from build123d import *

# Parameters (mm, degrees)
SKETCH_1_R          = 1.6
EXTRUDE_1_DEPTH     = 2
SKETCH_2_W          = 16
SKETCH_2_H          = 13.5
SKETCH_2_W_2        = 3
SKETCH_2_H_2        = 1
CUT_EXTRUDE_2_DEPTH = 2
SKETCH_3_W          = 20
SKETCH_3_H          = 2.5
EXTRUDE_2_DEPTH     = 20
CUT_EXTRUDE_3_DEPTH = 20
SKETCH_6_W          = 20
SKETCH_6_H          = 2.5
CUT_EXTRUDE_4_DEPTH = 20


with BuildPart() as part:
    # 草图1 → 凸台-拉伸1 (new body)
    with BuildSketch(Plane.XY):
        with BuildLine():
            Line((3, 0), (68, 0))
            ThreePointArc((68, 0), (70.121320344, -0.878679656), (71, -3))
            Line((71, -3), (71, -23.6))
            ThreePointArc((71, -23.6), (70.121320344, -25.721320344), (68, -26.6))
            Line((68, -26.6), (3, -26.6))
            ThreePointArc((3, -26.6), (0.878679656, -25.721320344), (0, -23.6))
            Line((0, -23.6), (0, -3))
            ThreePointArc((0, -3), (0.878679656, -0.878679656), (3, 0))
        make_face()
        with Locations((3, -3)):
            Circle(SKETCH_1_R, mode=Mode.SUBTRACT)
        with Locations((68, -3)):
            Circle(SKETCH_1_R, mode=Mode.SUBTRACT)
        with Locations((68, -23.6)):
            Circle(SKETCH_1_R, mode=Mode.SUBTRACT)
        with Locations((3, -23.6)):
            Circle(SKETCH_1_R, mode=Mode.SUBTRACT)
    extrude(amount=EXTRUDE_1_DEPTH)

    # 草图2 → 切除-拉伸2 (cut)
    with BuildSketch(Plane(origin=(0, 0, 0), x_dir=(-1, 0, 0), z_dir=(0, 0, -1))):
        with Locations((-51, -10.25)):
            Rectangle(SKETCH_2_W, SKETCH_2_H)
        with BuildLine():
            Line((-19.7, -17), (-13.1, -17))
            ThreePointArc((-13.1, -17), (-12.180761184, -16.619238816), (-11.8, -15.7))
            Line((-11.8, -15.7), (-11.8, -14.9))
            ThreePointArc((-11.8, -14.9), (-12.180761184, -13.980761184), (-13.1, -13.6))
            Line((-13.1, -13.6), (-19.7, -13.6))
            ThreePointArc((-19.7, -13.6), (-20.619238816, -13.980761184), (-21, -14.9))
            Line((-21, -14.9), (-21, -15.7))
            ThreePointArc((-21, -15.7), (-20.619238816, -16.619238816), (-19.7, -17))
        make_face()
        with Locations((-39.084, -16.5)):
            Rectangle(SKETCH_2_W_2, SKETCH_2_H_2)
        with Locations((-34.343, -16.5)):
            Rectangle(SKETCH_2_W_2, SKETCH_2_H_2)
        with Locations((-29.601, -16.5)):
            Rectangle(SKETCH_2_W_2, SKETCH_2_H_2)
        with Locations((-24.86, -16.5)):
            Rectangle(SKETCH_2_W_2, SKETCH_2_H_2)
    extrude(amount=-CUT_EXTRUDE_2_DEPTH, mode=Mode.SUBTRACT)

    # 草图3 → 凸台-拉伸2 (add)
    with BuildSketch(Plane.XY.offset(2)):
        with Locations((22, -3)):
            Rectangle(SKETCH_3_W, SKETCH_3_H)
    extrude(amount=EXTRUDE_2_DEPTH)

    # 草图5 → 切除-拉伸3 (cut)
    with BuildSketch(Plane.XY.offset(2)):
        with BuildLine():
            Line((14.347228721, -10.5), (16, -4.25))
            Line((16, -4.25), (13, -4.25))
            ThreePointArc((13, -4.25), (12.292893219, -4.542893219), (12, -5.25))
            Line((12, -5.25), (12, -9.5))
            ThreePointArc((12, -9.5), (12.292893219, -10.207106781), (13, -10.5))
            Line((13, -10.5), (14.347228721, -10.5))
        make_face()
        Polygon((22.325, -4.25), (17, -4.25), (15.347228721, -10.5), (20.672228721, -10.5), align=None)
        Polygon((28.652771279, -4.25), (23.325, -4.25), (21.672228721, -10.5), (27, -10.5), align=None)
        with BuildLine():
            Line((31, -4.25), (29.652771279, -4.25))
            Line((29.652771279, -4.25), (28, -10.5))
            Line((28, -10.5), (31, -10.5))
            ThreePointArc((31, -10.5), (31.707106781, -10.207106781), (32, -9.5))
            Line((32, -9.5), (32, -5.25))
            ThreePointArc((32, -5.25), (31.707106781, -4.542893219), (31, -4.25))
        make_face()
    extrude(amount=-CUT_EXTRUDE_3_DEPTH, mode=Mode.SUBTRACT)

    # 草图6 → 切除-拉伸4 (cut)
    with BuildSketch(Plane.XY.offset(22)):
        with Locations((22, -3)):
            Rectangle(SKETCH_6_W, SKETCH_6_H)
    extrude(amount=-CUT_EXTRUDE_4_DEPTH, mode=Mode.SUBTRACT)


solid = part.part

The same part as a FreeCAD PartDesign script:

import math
import FreeCAD as App
import Part
import Sketcher
Q = App.Units.Quantity


def add_polygon(sketch, points):
    """Adds a closed chain of lines whose ends are joined by coincident constraints."""
    first, n = sketch.GeometryCount, len(points)
    for a, b in zip(points, points[1:] + points[:1]):
        sketch.addGeometry(Part.LineSegment(App.Vector(*a, 0), App.Vector(*b, 0)), False)
    for i in range(n):
        sketch.addConstraint(Sketcher.Constraint("Coincident", first + i, 2, first + (i + 1) % n, 1))

doc = App.newDocument("Part")
params = doc.addObject("Spreadsheet::Sheet", "Params")
for row, (alias, value) in enumerate([
    ("sketch1_radius", "3 mm"),
    ("sketch1_diameter", "3.2 mm"),
    ("sketch1_width", "65 mm"),
    ("sketch1_height", "20.6 mm"),
    ("pad1_length", "2 mm"),
    ("sketch2_radius", "1.3 mm"),
    ("sketch2_width", "16 mm"),
    ("sketch2_width2", "3 mm"),
    ("sketch2_height", "1 mm"),
    ("sketch2_width3", "6.6 mm"),
    ("pocket1_length", "2 mm"),
    ("sketch3_width", "20 mm"),
    ("sketch3_height", "2.5 mm"),
    ("pad2_length", "20 mm"),
    ("sketch4_radius", "1 mm"),
    ("sketch4_width", "3 mm"),
    ("sketch4_height", "4.25 mm"),
    ("pocket2_length", "20 mm"),
    ("sketch5_width", "20 mm"),
    ("sketch5_height", "2.5 mm"),
    ("pocket3_length", "20 mm"),
], start=1):
    params.set(f"A{row}", alias)
    params.set(f"B{row}", "=" + value)
    params.setAlias(f"B{row}", alias)

body = doc.addObject("PartDesign::Body", "Body")

# Sketch on XY plane
sketch1 = doc.addObject("Sketcher::SketchObject", "Sketch")
body.addObject(sketch1)
sketch1.AttachmentSupport = (doc.XY_Plane, [""])
sketch1.MapMode = "FlatFace"
sketch1.addGeometry([
    Part.LineSegment(App.Vector(68, 0, 0), App.Vector(3, 0, 0)),  # 0
    Part.ArcOfCircle(Part.Circle(App.Vector(3, -3, 0), App.Vector(0, 0, 1), 3), math.radians(90), math.radians(180)),  # 1
    Part.LineSegment(App.Vector(0, -3, 0), App.Vector(0, -23.6, 0)),  # 2
    Part.ArcOfCircle(Part.Circle(App.Vector(3, -23.6, 0), App.Vector(0, 0, 1), 3), math.radians(180), math.radians(270)),  # 3
    Part.LineSegment(App.Vector(3, -26.6, 0), App.Vector(68, -26.6, 0)),  # 4
    Part.ArcOfCircle(Part.Circle(App.Vector(68, -23.6, 0), App.Vector(0, 0, 1), 3), math.radians(-90), math.radians(0)),  # 5
    Part.LineSegment(App.Vector(71, -23.6, 0), App.Vector(71, -3, 0)),  # 6
    Part.ArcOfCircle(Part.Circle(App.Vector(68, -3, 0), App.Vector(0, 0, 1), 3), math.radians(0), math.radians(90)),  # 7
    Part.Circle(App.Vector(68, -23.6, 0), App.Vector(0, 0, 1), 1.6),  # 8
    Part.Circle(App.Vector(3, -23.6, 0), App.Vector(0, 0, 1), 1.6),  # 9
    Part.Circle(App.Vector(68, -3, 0), App.Vector(0, 0, 1), 1.6),  # 10
    Part.Circle(App.Vector(3, -3, 0), App.Vector(0, 0, 1), 1.6),  # 11
], False)
sketch1.addConstraint([
    Sketcher.Constraint("Tangent", 0, 2, 1, 1),
    Sketcher.Constraint("Tangent", 1, 2, 2, 1),
    Sketcher.Constraint("Tangent", 2, 2, 3, 1),
    Sketcher.Constraint("Tangent", 3, 2, 4, 1),
    Sketcher.Constraint("Tangent", 4, 2, 5, 1),
    Sketcher.Constraint("Tangent", 5, 2, 6, 1),
    Sketcher.Constraint("Tangent", 6, 2, 7, 1),
    Sketcher.Constraint("Tangent", 7, 2, 0, 1),
    Sketcher.Constraint("Horizontal", 0),
    Sketcher.Constraint("Vertical", 2),
    Sketcher.Constraint("Horizontal", 4),
    Sketcher.Constraint("Vertical", 6),
    Sketcher.Constraint("Coincident", 8, 3, 5, 3),
    Sketcher.Constraint("Coincident", 9, 3, 3, 3),
    Sketcher.Constraint("Coincident", 10, 3, 7, 3),
    Sketcher.Constraint("Coincident", 11, 3, 1, 3),
    Sketcher.Constraint("Equal", 1, 3),
    Sketcher.Constraint("Equal", 3, 5),
    Sketcher.Constraint("Equal", 5, 7),
    Sketcher.Constraint("Equal", 8, 9),
    Sketcher.Constraint("Equal", 9, 10),
    Sketcher.Constraint("Equal", 10, 11),
    Sketcher.Constraint("PointOnObject", 0, 2, -1),
    Sketcher.Constraint("PointOnObject", 1, 2, -2),
    Sketcher.Constraint("Radius", 1, Q("3 mm")),
    Sketcher.Constraint("Diameter", 8, Q("3.2 mm")),
    Sketcher.Constraint("DistanceX", 0, 2, 0, 1, Q("65 mm")),
    Sketcher.Constraint("DistanceY", 2, 2, 2, 1, Q("20.6 mm")),
])
sketch1.setExpression("Constraints[24]", "Params.sketch1_radius")
sketch1.setExpression("Constraints[25]", "Params.sketch1_diameter")
sketch1.setExpression("Constraints[26]", "Params.sketch1_width")
sketch1.setExpression("Constraints[27]", "Params.sketch1_height")
pad1 = doc.addObject("PartDesign::Pad", "Pad")
body.addObject(pad1)
pad1.Profile = sketch1
pad1.setExpression("Length", "Params.pad1_length")

# Sketch on XY plane
sketch2 = doc.addObject("Sketcher::SketchObject", "Sketch001")
body.addObject(sketch2)
sketch2.AttachmentSupport = (doc.XY_Plane, [""])
sketch2.MapMode = "FlatFace"
add_polygon(sketch2, [(59, -3.5), (59, -17), (43, -17), (43, -3.5)])  # lines 0-3
sketch2.addGeometry(Part.LineSegment(App.Vector(19.7, -17, 0), App.Vector(13.1, -17, 0)), False)  # 4
sketch2.addGeometry(Part.ArcOfCircle(Part.Circle(App.Vector(13.1, -15.7, 0), App.Vector(0, 0, 1), 1.3), math.radians(180), math.radians(270)), False)  # 5
sketch2.addGeometry(Part.LineSegment(App.Vector(11.8, -15.7, 0), App.Vector(11.8, -14.9, 0)), False)  # 6
sketch2.addGeometry(Part.ArcOfCircle(Part.Circle(App.Vector(13.1, -14.9, 0), App.Vector(0, 0, 1), 1.3), math.radians(90), math.radians(180)), False)  # 7
sketch2.addGeometry(Part.LineSegment(App.Vector(13.1, -13.6, 0), App.Vector(19.7, -13.6, 0)), False)  # 8
sketch2.addGeometry(Part.ArcOfCircle(Part.Circle(App.Vector(19.7, -14.9, 0), App.Vector(0, 0, 1), 1.3), math.radians(0), math.radians(90)), False)  # 9
sketch2.addGeometry(Part.LineSegment(App.Vector(21, -14.9, 0), App.Vector(21, -15.7, 0)), False)  # 10
sketch2.addGeometry(Part.ArcOfCircle(Part.Circle(App.Vector(19.7, -15.7, 0), App.Vector(0, 0, 1), 1.3), math.radians(-90), math.radians(0)), False)  # 11
add_polygon(sketch2, [(40.584, -16), (40.584, -17), (37.584, -17), (37.584, -16)])  # lines 12-15
add_polygon(sketch2, [(35.843, -16), (35.843, -17), (32.843, -17), (32.843, -16)])  # lines 16-19
add_polygon(sketch2, [(31.101, -16), (31.101, -17), (28.101, -17), (28.101, -16)])  # lines 20-23
add_polygon(sketch2, [(26.36, -16), (26.36, -17), (23.36, -17), (23.36, -16)])  # lines 24-27
sketch2.addConstraint([
    Sketcher.Constraint("Tangent", 4, 2, 5, 2),
    Sketcher.Constraint("Tangent", 5, 1, 6, 1),
    Sketcher.Constraint("Tangent", 6, 2, 7, 2),
    Sketcher.Constraint("Tangent", 7, 1, 8, 1),
    Sketcher.Constraint("Tangent", 8, 2, 9, 2),
    Sketcher.Constraint("Tangent", 9, 1, 10, 1),
    Sketcher.Constraint("Tangent", 10, 2, 11, 2),
    Sketcher.Constraint("Tangent", 11, 1, 4, 1),
    Sketcher.Constraint("Vertical", 0),
    Sketcher.Constraint("Horizontal", 1),
    Sketcher.Constraint("Vertical", 2),
    Sketcher.Constraint("Horizontal", 3),
    Sketcher.Constraint("Horizontal", 4),
    Sketcher.Constraint("Vertical", 6),
    Sketcher.Constraint("Horizontal", 8),
    Sketcher.Constraint("Vertical", 10),
    Sketcher.Constraint("Vertical", 12),
    Sketcher.Constraint("Horizontal", 13),
    Sketcher.Constraint("Vertical", 14),
    Sketcher.Constraint("Horizontal", 15),
    Sketcher.Constraint("Vertical", 16),
    Sketcher.Constraint("Horizontal", 17),
    Sketcher.Constraint("Vertical", 18),
    Sketcher.Constraint("Horizontal", 19),
    Sketcher.Constraint("Vertical", 20),
    Sketcher.Constraint("Horizontal", 21),
    Sketcher.Constraint("Vertical", 22),
    Sketcher.Constraint("Horizontal", 23),
    Sketcher.Constraint("Vertical", 24),
    Sketcher.Constraint("Horizontal", 25),
    Sketcher.Constraint("Vertical", 26),
    Sketcher.Constraint("Horizontal", 27),
    Sketcher.Constraint("Equal", 5, 7),
    Sketcher.Constraint("Equal", 7, 9),
    Sketcher.Constraint("Equal", 9, 11),
    Sketcher.Constraint("Horizontal", 1, 2, 4, 2),
    Sketcher.Constraint("Horizontal", 11, 1, 12, 2),
    Sketcher.Constraint("Horizontal", 13, 2, 16, 2),
    Sketcher.Constraint("Horizontal", 15, 2, 18, 2),
    Sketcher.Constraint("Horizontal", 17, 2, 20, 2),
    Sketcher.Constraint("Horizontal", 19, 2, 22, 2),
    Sketcher.Constraint("Horizontal", 21, 2, 24, 2),
    Sketcher.Constraint("Horizontal", 23, 2, 26, 2),
    Sketcher.Constraint("Equal", 15, 17),
    Sketcher.Constraint("Equal", 19, 21),
    Sketcher.Constraint("Equal", 23, 25),
    Sketcher.Constraint("Radius", 5, Q("1.3 mm")),
    Sketcher.Constraint("DistanceX", 1, 2, 1, 1, Q("16 mm")),
    Sketcher.Constraint("DistanceX", 13, 2, 13, 1, Q("3 mm")),
    Sketcher.Constraint("DistanceY", 12, 2, 12, 1, Q("1 mm")),
    Sketcher.Constraint("DistanceX", 4, 2, 4, 1, Q("6.6 mm")),
    Sketcher.Constraint("DistanceY", 0, 2, 0, 1, Q("13.5 mm")),
    Sketcher.Constraint("DistanceY", 6, 1, 6, 2, Q("0.8 mm")),
    Sketcher.Constraint("DistanceX", -1, 1, 0, 2, Q("59 mm")),
    Sketcher.Constraint("DistanceY", 0, 2, -1, 1, Q("17 mm")),
    Sketcher.Constraint("DistanceX", -1, 1, 9, 1, Q("21 mm")),
    Sketcher.Constraint("DistanceX", -1, 1, 24, 2, Q("26.36 mm")),
    Sketcher.Constraint("DistanceX", -1, 1, 12, 2, Q("40.584 mm")),
    Sketcher.Constraint("DistanceX", -1, 1, 16, 2, Q("35.843 mm")),
    Sketcher.Constraint("DistanceX", -1, 1, 20, 2, Q("31.101 mm")),
])
sketch2.setExpression("Constraints[66]", "Params.sketch2_radius")
sketch2.setExpression("Constraints[67]", "Params.sketch2_width")
sketch2.setExpression("Constraints[68]", "Params.sketch2_width2")
sketch2.setExpression("Constraints[69]", "Params.sketch2_height")
sketch2.setExpression("Constraints[70]", "Params.sketch2_width3")
pocket1 = doc.addObject("PartDesign::Pocket", "Pocket")
body.addObject(pocket1)
pocket1.Profile = sketch2
pocket1.setExpression("Length", "Params.pocket1_length")
pocket1.Reversed = True

# Sketch on XY plane
sketch3 = doc.addObject("Sketcher::SketchObject", "Sketch002")
body.addObject(sketch3)
sketch3.AttachmentSupport = (doc.XY_Plane, [""])
sketch3.MapMode = "FlatFace"
sketch3.AttachmentOffset = App.Placement(App.Vector(0, 0, 2), App.Rotation())
add_polygon(sketch3, [(12, -1.75), (12, -4.25), (32, -4.25), (32, -1.75)])  # lines 0-3
sketch3.addConstraint([
    Sketcher.Constraint("Vertical", 0),
    Sketcher.Constraint("Horizontal", 1),
    Sketcher.Constraint("Vertical", 2),
    Sketcher.Constraint("Horizontal", 3),
    Sketcher.Constraint("DistanceX", 1, 1, 1, 2, Q("20 mm")),
    Sketcher.Constraint("DistanceY", 0, 2, 0, 1, Q("2.5 mm")),
    Sketcher.Constraint("DistanceX", -1, 1, 0, 2, Q("12 mm")),
    Sketcher.Constraint("DistanceY", 0, 2, -1, 1, Q("4.25 mm")),
])
sketch3.setExpression("Constraints[8]", "Params.sketch3_width")
sketch3.setExpression("Constraints[9]", "Params.sketch3_height")
pad2 = doc.addObject("PartDesign::Pad", "Pad001")
body.addObject(pad2)
pad2.Profile = sketch3
pad2.setExpression("Length", "Params.pad2_length")

# Sketch on XY plane
sketch4 = doc.addObject("Sketcher::SketchObject", "Sketch003")
body.addObject(sketch4)
sketch4.AttachmentSupport = (doc.XY_Plane, [""])
sketch4.MapMode = "FlatFace"
sketch4.AttachmentOffset = App.Placement(App.Vector(0, 0, 2), App.Rotation())
sketch4.addGeometry(Part.LineSegment(App.Vector(14.347229, -10.5, 0), App.Vector(16, -4.25, 0)), False)  # 0
sketch4.addGeometry(Part.LineSegment(App.Vector(16, -4.25, 0), App.Vector(13, -4.25, 0)), False)  # 1
sketch4.addGeometry(Part.ArcOfCircle(Part.Circle(App.Vector(13, -5.25, 0), App.Vector(0, 0, 1), 1), math.radians(90), math.radians(180)), False)  # 2
sketch4.addGeometry(Part.LineSegment(App.Vector(12, -5.25, 0), App.Vector(12, -9.5, 0)), False)  # 3
sketch4.addGeometry(Part.ArcOfCircle(Part.Circle(App.Vector(13, -9.5, 0), App.Vector(0, 0, 1), 1), math.radians(-180), math.radians(-90)), False)  # 4
sketch4.addGeometry(Part.LineSegment(App.Vector(13, -10.5, 0), App.Vector(14.347229, -10.5, 0)), False)  # 5
add_polygon(sketch4, [(22.325, -4.25), (17, -4.25), (15.347229, -10.5), (20.672229, -10.5)])  # lines 6-9
add_polygon(sketch4, [(28.652771, -4.25), (23.325, -4.25), (21.672229, -10.5), (27, -10.5)])  # lines 10-13
sketch4.addGeometry(Part.LineSegment(App.Vector(31, -4.25, 0), App.Vector(29.652771, -4.25, 0)), False)  # 14
sketch4.addGeometry(Part.LineSegment(App.Vector(29.652771, -4.25, 0), App.Vector(28, -10.5, 0)), False)  # 15
sketch4.addGeometry(Part.LineSegment(App.Vector(28, -10.5, 0), App.Vector(31, -10.5, 0)), False)  # 16
sketch4.addGeometry(Part.ArcOfCircle(Part.Circle(App.Vector(31, -9.5, 0), App.Vector(0, 0, 1), 1), math.radians(-90), math.radians(0)), False)  # 17
sketch4.addGeometry(Part.LineSegment(App.Vector(32, -9.5, 0), App.Vector(32, -5.25, 0)), False)  # 18
sketch4.addGeometry(Part.ArcOfCircle(Part.Circle(App.Vector(31, -5.25, 0), App.Vector(0, 0, 1), 1), math.radians(0), math.radians(90)), False)  # 19
sketch4.addConstraint([
    Sketcher.Constraint("Coincident", 0, 2, 1, 1),
    Sketcher.Constraint("Tangent", 1, 2, 2, 1),
    Sketcher.Constraint("Tangent", 2, 2, 3, 1),
    Sketcher.Constraint("Tangent", 3, 2, 4, 1),
    Sketcher.Constraint("Tangent", 4, 2, 5, 1),
    Sketcher.Constraint("Coincident", 5, 2, 0, 1),
    Sketcher.Constraint("Coincident", 14, 2, 15, 1),
    Sketcher.Constraint("Coincident", 15, 2, 16, 1),
    Sketcher.Constraint("Tangent", 16, 2, 17, 1),
    Sketcher.Constraint("Tangent", 17, 2, 18, 1),
    Sketcher.Constraint("Tangent", 18, 2, 19, 1),
    Sketcher.Constraint("Tangent", 19, 2, 14, 1),
    Sketcher.Constraint("Horizontal", 1),
    Sketcher.Constraint("Vertical", 3),
    Sketcher.Constraint("Horizontal", 5),
    Sketcher.Constraint("Horizontal", 6),
    Sketcher.Constraint("Horizontal", 8),
    Sketcher.Constraint("Horizontal", 10),
    Sketcher.Constraint("Horizontal", 12),
    Sketcher.Constraint("Horizontal", 14),
    Sketcher.Constraint("Horizontal", 16),
    Sketcher.Constraint("Vertical", 18),
    Sketcher.Constraint("Equal", 2, 4),
    Sketcher.Constraint("Equal", 4, 17),
    Sketcher.Constraint("Equal", 17, 19),
    Sketcher.Constraint("Parallel", 0, 7),
    Sketcher.Constraint("Parallel", 7, 9),
    Sketcher.Constraint("Parallel", 9, 11),
    Sketcher.Constraint("Parallel", 11, 13),
    Sketcher.Constraint("Parallel", 13, 15),
    Sketcher.Constraint("Horizontal", 4, 3, 17, 3),
    Sketcher.Constraint("Horizontal", 2, 3, 19, 3),
    Sketcher.Constraint("Horizontal", 1, 2, 6, 2),
    Sketcher.Constraint("Horizontal", 5, 2, 7, 2),
    Sketcher.Constraint("Horizontal", 9, 2, 10, 2),
    Sketcher.Constraint("Horizontal", 8, 2, 11, 2),
    Sketcher.Constraint("Equal", 5, 14),
    Sketcher.Constraint("Radius", 2, Q("1 mm")),
    Sketcher.Constraint("DistanceX", 1, 2, 1, 1, Q("3 mm")),
    Sketcher.Constraint("DistanceX", -1, 1, 2, 3, Q("13 mm")),
    Sketcher.Constraint("DistanceX", -1, 1, 17, 3, Q("31 mm")),
    Sketcher.Constraint("DistanceX", -1, 1, 6, 2, Q("17 mm")),
    Sketcher.Constraint("DistanceX", -1, 1, 12, 2, Q("27 mm")),
    Sketcher.Constraint("DistanceX", 9, 2, 10, 2, Q("1 mm")),
    Sketcher.Constraint("DistanceY", 3, 2, 3, 1, Q("4.25 mm")),
    Sketcher.Constraint("DistanceY", 4, 3, -1, 1, Q("9.5 mm")),
    Sketcher.Constraint("DistanceX", 6, 2, 6, 1, Q("5.325 mm")),
    Sketcher.Constraint("DistanceX", 5, 1, 5, 2, Q("1.347229 mm")),
])
sketch4.setExpression("Constraints[45]", "Params.sketch4_radius")
sketch4.setExpression("Constraints[46]", "Params.sketch4_width")
sketch4.setExpression("Constraints[52]", "Params.sketch4_height")
pocket2 = doc.addObject("PartDesign::Pocket", "Pocket001")
body.addObject(pocket2)
pocket2.Profile = sketch4
pocket2.setExpression("Length", "Params.pocket2_length")

# Sketch on XY plane
sketch5 = doc.addObject("Sketcher::SketchObject", "Sketch004")
body.addObject(sketch5)
sketch5.AttachmentSupport = (doc.XY_Plane, [""])
sketch5.MapMode = "FlatFace"
sketch5.AttachmentOffset = App.Placement(App.Vector(0, 0, 22), App.Rotation())
add_polygon(sketch5, [(12, -1.75), (12, -4.25), (32, -4.25), (32, -1.75)])  # lines 0-3
sketch5.addConstraint([
    Sketcher.Constraint("Vertical", 0),
    Sketcher.Constraint("Horizontal", 1),
    Sketcher.Constraint("Vertical", 2),
    Sketcher.Constraint("Horizontal", 3),
    Sketcher.Constraint("DistanceX", 1, 1, 1, 2, Q("20 mm")),
    Sketcher.Constraint("DistanceY", 0, 2, 0, 1, Q("2.5 mm")),
    Sketcher.Constraint("DistanceX", -1, 1, 0, 2, Q("12 mm")),
    Sketcher.Constraint("DistanceY", 0, 2, -1, 1, Q("4.25 mm")),
])
sketch5.setExpression("Constraints[8]", "Params.sketch5_width")
sketch5.setExpression("Constraints[9]", "Params.sketch5_height")
pocket3 = doc.addObject("PartDesign::Pocket", "Pocket002")
body.addObject(pocket3)
pocket3.Profile = sketch5
pocket3.setExpression("Length", "Params.pocket3_length")

doc.recompute()
